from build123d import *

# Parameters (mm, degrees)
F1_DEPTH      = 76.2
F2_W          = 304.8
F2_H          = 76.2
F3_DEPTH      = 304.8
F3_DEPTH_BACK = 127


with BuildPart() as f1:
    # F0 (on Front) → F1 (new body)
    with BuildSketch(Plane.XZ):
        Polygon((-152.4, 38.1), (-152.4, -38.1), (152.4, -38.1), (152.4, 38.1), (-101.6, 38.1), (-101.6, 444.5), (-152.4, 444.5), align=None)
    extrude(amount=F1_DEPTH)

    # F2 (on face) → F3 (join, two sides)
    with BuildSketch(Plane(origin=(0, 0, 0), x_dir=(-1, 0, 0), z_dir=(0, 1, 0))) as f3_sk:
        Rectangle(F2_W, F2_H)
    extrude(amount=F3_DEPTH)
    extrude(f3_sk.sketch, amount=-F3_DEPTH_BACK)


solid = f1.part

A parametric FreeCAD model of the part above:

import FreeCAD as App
import Part
import Sketcher
from FreeCAD import Vector
Q = App.Units.Quantity

doc = App.newDocument("Part")
body = doc.addObject("PartDesign::Body", "Body")

# Sketch on XZ plane
sketch1 = doc.addObject("Sketcher::SketchObject", "Sketch")
body.addObject(sketch1)
sketch1.AttachmentSupport = (doc.XZ_Plane, [""])
sketch1.MapMode = "FlatFace"
sketch1.addGeometry(Part.LineSegment(Vector(-152.4, -38.1, 0), Vector(152.4, -38.1, 0)), False)
sketch1.addGeometry(Part.LineSegment(Vector(152.4, -38.1, 0), Vector(152.4, 38.1, 0)), False)
sketch1.addGeometry(Part.LineSegment(Vector(152.4, 38.1, 0), Vector(-101.6, 38.1, 0)), False)
sketch1.addGeometry(Part.LineSegment(Vector(-101.6, 38.1, 0), Vector(-101.6, 444.5, 0)), False)
sketch1.addGeometry(Part.LineSegment(Vector(-101.6, 444.5, 0), Vector(-152.4, 444.5, 0)), False)
sketch1.addGeometry(Part.LineSegment(Vector(-152.4, 444.5, 0), Vector(-152.4, -38.1, 0)), False)
sketch1.addConstraint(Sketcher.Constraint("Coincident", 0, 2, 1, 1))
sketch1.addConstraint(Sketcher.Constraint("Coincident", 1, 2, 2, 1))
sketch1.addConstraint(Sketcher.Constraint("Coincident", 2, 2, 3, 1))
sketch1.addConstraint(Sketcher.Constraint("Coincident", 3, 2, 4, 1))
sketch1.addConstraint(Sketcher.Constraint("Coincident", 4, 2, 5, 1))
sketch1.addConstraint(Sketcher.Constraint("Coincident", 5, 2, 0, 1))
sketch1.addConstraint(Sketcher.Constraint("Horizontal", 0))
sketch1.addConstraint(Sketcher.Constraint("Vertical", 1))
sketch1.addConstraint(Sketcher.Constraint("Horizontal", 2))
sketch1.addConstraint(Sketcher.Constraint("Vertical", 3))
sketch1.addConstraint(Sketcher.Constraint("Horizontal", 4))
sketch1.addConstraint(Sketcher.Constraint("Vertical", 5))
sketch1.addConstraint(Sketcher.Constraint("Symmetric", 1, 2, 5, 2, -1, 1))
sketch1.addConstraint(Sketcher.Constraint("DistanceX", 0, 1, 0, 2, Q("12 in")))
sketch1.addConstraint(Sketcher.Constraint("DistanceX", 2, 2, 2, 1, Q("10 in")))
sketch1.addConstraint(Sketcher.Constraint("DistanceY", 1, 1, 1, 2, Q("3 in")))
sketch1.addConstraint(Sketcher.Constraint("DistanceY", 3, 1, 3, 2, Q("16 in")))
pad1 = doc.addObject("PartDesign::Pad", "Pad")
body.addObject(pad1)
pad1.Profile = sketch1
pad1.Length = Q("3 in")

# Sketch on XZ plane
sketch2 = doc.addObject("Sketcher::SketchObject", "Sketch001")
body.addObject(sketch2)
sketch2.AttachmentSupport = (doc.XZ_Plane, [""])
sketch2.MapMode = "FlatFace"
sketch2.addGeometry(Part.LineSegment(Vector(152.4, 38.1, 0), Vector(152.4, -38.1, 0)), False)
sketch2.addGeometry(Part.LineSegment(Vector(152.4, -38.1, 0), Vector(-152.4, -38.1, 0)), False)
sketch2.addGeometry(Part.LineSegment(Vector(-152.4, -38.1, 0), Vector(-152.4, 38.1, 0)), False)
sketch2.addGeometry(Part.LineSegment(Vector(-152.4, 38.1, 0), Vector(152.4, 38.1, 0)), False)
sketch2.addConstraint(Sketcher.Constraint("Coincident", 0, 2, 1, 1))
sketch2.addConstraint(Sketcher.Constraint("Coincident", 1, 2, 2, 1))
sketch2.addConstraint(Sketcher.Constraint("Coincident", 2, 2, 3, 1))
sketch2.addConstraint(Sketcher.Constraint("Coincident", 3, 2, 0, 1))
sketch2.addConstraint(Sketcher.Constraint("Vertical", 0))
sketch2.addConstraint(Sketcher.Constraint("Horizontal", 1))
sketch2.addConstraint(Sketcher.Constraint("Vertical", 2))
sketch2.addConstraint(Sketcher.Constraint("Horizontal", 3))
sketch2.addConstraint(Sketcher.Constraint("Symmetric", 0, 2, 2, 2, -1, 1))
sketch2.addConstraint(Sketcher.Constraint("DistanceX", 1, 2, 1, 1, Q("12 in")))
sketch2.addConstraint(Sketcher.Constraint("DistanceY", 0, 2, 0, 1, Q("3 in")))
pad2 = doc.addObject("PartDesign::Pad", "Pad001")
body.addObject(pad2)
pad2.Profile = sketch2
pad2.Type = "TwoLengths"
pad2.Length = Q("12 in")
pad2.Length2 = Q("5 in")
pad2.Reversed = True

doc.recompute()
